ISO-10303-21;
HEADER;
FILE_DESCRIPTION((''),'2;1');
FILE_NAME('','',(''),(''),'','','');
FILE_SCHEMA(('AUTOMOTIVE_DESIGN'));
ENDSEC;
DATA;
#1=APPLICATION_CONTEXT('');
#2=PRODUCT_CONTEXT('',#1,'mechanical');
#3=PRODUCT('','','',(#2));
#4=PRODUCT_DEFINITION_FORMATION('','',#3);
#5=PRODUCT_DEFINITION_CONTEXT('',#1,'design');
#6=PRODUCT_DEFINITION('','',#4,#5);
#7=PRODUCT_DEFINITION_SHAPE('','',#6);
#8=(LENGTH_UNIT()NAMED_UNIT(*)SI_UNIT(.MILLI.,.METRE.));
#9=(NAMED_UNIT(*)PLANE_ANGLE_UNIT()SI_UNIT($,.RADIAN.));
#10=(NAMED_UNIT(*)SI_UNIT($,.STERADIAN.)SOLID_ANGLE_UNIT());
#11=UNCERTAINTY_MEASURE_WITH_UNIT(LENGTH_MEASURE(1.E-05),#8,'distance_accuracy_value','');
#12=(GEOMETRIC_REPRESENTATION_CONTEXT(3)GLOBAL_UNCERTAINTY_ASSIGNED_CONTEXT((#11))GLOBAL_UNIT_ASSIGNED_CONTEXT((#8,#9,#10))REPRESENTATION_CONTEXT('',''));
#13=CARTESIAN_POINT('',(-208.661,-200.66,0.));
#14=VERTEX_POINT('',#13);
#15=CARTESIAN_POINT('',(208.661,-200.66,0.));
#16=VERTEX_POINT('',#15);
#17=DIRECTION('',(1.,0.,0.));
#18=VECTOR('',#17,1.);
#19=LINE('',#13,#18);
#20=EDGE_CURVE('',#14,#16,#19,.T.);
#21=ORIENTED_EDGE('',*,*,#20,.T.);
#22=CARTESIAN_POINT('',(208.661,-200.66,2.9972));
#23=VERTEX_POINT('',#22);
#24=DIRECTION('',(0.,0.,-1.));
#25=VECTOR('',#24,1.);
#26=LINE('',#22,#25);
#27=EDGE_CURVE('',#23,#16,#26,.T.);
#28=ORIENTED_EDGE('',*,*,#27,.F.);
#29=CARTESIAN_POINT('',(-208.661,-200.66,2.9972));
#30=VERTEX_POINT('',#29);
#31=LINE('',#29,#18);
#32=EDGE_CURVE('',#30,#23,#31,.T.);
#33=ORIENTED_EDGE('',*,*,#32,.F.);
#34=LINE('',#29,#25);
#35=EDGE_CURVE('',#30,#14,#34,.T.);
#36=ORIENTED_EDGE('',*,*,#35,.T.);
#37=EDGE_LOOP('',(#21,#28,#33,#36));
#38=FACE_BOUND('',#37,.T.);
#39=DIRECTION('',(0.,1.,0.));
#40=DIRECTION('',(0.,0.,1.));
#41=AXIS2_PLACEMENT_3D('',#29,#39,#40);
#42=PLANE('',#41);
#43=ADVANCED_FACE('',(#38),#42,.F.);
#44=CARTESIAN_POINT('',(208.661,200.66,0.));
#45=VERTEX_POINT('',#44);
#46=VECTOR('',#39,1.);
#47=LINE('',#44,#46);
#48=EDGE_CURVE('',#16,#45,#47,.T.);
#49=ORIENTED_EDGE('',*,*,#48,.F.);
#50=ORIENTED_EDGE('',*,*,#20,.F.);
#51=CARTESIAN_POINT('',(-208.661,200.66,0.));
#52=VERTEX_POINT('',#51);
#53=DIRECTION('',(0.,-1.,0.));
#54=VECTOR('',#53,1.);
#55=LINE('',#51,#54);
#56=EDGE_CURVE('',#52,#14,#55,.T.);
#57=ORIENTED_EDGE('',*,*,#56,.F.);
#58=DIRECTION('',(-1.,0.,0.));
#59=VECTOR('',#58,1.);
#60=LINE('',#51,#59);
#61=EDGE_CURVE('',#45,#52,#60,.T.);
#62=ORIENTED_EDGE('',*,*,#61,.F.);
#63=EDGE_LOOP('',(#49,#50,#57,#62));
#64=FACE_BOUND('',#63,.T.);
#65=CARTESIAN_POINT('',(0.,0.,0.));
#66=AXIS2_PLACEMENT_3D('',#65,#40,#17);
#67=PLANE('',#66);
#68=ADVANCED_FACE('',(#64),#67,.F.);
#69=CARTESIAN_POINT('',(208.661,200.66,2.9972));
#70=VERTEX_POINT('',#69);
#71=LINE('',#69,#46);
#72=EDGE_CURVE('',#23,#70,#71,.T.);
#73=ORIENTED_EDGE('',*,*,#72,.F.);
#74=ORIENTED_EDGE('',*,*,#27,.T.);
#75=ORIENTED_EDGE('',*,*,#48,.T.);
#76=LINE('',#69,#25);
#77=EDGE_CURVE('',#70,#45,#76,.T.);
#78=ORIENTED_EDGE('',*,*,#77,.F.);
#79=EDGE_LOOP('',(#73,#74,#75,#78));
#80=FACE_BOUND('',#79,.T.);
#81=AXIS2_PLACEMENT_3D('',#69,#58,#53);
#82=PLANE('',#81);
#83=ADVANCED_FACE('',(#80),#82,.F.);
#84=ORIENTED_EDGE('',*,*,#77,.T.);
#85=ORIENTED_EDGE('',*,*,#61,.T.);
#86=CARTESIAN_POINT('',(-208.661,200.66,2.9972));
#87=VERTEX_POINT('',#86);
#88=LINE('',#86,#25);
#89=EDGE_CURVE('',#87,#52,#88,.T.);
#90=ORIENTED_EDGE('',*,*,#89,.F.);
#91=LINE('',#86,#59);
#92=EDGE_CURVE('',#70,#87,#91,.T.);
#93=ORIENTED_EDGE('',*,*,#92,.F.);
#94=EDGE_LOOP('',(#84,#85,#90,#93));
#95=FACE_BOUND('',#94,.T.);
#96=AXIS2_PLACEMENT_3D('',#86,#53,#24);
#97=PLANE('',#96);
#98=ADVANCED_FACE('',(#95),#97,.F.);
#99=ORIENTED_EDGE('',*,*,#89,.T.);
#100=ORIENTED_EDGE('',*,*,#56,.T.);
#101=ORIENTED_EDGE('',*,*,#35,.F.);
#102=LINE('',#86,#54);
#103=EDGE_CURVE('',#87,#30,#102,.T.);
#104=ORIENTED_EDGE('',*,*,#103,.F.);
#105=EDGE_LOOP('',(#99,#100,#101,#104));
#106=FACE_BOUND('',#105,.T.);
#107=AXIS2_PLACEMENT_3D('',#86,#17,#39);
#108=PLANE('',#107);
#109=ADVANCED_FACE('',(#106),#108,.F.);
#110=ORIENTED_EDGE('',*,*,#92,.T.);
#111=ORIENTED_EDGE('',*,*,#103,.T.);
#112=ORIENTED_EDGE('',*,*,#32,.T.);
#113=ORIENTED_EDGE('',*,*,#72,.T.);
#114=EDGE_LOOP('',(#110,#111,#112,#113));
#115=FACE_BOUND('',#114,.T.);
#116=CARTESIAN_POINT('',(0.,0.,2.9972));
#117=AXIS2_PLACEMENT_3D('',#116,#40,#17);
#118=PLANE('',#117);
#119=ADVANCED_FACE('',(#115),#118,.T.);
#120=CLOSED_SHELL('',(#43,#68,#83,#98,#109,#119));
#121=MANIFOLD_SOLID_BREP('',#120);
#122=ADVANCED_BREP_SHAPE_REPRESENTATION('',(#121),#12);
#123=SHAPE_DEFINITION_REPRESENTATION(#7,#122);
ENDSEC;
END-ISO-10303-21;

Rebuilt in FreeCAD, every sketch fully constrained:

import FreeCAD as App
import Part
import Sketcher

V = App.Vector
Q = App.Units.Quantity


def add_polygon(sketch, points):
    """Adds a closed chain of lines whose ends are joined by coincident constraints."""
    first, n = sketch.GeometryCount, len(points)
    for a, b in zip(points, points[1:] + points[:1]):
        sketch.addGeometry(Part.LineSegment(App.Vector(*a, 0), App.Vector(*b, 0)), False)
    for i in range(n):
        sketch.addConstraint(Sketcher.Constraint("Coincident", first + i, 2, first + (i + 1) % n, 1))

doc = App.newDocument("Part")
body = doc.addObject("PartDesign::Body", "Body")

# Sketch on XY plane
sketch1 = body.newObject("Sketcher::SketchObject", "Sketch")
sketch1.AttachmentSupport = (doc.getObject("XY_Plane"), [""])
sketch1.MapMode = "FlatFace"
add_polygon(sketch1, [(-209, 201), (-209, -201), (209, -201), (209, 201)])  # lines 0-3
sketch1.addConstraint([
    Sketcher.Constraint("Vertical", 0),
    Sketcher.Constraint("Horizontal", 1),
    Sketcher.Constraint("Vertical", 2),
    Sketcher.Constraint("Horizontal", 3),
    Sketcher.Constraint("Symmetric", 0, 2, 2, 2, -1, 1),
    Sketcher.Constraint("DistanceY", 0, 2, 0, 1, Q("15.8 in")),
    Sketcher.Constraint("DistanceX", 1, 1, 1, 2, Q("16.43 in")),
])
pad1 = body.newObject("PartDesign::Pad", "Pad")
pad1.Profile = sketch1
pad1.Length = Q("0.118 in")

doc.recompute()
